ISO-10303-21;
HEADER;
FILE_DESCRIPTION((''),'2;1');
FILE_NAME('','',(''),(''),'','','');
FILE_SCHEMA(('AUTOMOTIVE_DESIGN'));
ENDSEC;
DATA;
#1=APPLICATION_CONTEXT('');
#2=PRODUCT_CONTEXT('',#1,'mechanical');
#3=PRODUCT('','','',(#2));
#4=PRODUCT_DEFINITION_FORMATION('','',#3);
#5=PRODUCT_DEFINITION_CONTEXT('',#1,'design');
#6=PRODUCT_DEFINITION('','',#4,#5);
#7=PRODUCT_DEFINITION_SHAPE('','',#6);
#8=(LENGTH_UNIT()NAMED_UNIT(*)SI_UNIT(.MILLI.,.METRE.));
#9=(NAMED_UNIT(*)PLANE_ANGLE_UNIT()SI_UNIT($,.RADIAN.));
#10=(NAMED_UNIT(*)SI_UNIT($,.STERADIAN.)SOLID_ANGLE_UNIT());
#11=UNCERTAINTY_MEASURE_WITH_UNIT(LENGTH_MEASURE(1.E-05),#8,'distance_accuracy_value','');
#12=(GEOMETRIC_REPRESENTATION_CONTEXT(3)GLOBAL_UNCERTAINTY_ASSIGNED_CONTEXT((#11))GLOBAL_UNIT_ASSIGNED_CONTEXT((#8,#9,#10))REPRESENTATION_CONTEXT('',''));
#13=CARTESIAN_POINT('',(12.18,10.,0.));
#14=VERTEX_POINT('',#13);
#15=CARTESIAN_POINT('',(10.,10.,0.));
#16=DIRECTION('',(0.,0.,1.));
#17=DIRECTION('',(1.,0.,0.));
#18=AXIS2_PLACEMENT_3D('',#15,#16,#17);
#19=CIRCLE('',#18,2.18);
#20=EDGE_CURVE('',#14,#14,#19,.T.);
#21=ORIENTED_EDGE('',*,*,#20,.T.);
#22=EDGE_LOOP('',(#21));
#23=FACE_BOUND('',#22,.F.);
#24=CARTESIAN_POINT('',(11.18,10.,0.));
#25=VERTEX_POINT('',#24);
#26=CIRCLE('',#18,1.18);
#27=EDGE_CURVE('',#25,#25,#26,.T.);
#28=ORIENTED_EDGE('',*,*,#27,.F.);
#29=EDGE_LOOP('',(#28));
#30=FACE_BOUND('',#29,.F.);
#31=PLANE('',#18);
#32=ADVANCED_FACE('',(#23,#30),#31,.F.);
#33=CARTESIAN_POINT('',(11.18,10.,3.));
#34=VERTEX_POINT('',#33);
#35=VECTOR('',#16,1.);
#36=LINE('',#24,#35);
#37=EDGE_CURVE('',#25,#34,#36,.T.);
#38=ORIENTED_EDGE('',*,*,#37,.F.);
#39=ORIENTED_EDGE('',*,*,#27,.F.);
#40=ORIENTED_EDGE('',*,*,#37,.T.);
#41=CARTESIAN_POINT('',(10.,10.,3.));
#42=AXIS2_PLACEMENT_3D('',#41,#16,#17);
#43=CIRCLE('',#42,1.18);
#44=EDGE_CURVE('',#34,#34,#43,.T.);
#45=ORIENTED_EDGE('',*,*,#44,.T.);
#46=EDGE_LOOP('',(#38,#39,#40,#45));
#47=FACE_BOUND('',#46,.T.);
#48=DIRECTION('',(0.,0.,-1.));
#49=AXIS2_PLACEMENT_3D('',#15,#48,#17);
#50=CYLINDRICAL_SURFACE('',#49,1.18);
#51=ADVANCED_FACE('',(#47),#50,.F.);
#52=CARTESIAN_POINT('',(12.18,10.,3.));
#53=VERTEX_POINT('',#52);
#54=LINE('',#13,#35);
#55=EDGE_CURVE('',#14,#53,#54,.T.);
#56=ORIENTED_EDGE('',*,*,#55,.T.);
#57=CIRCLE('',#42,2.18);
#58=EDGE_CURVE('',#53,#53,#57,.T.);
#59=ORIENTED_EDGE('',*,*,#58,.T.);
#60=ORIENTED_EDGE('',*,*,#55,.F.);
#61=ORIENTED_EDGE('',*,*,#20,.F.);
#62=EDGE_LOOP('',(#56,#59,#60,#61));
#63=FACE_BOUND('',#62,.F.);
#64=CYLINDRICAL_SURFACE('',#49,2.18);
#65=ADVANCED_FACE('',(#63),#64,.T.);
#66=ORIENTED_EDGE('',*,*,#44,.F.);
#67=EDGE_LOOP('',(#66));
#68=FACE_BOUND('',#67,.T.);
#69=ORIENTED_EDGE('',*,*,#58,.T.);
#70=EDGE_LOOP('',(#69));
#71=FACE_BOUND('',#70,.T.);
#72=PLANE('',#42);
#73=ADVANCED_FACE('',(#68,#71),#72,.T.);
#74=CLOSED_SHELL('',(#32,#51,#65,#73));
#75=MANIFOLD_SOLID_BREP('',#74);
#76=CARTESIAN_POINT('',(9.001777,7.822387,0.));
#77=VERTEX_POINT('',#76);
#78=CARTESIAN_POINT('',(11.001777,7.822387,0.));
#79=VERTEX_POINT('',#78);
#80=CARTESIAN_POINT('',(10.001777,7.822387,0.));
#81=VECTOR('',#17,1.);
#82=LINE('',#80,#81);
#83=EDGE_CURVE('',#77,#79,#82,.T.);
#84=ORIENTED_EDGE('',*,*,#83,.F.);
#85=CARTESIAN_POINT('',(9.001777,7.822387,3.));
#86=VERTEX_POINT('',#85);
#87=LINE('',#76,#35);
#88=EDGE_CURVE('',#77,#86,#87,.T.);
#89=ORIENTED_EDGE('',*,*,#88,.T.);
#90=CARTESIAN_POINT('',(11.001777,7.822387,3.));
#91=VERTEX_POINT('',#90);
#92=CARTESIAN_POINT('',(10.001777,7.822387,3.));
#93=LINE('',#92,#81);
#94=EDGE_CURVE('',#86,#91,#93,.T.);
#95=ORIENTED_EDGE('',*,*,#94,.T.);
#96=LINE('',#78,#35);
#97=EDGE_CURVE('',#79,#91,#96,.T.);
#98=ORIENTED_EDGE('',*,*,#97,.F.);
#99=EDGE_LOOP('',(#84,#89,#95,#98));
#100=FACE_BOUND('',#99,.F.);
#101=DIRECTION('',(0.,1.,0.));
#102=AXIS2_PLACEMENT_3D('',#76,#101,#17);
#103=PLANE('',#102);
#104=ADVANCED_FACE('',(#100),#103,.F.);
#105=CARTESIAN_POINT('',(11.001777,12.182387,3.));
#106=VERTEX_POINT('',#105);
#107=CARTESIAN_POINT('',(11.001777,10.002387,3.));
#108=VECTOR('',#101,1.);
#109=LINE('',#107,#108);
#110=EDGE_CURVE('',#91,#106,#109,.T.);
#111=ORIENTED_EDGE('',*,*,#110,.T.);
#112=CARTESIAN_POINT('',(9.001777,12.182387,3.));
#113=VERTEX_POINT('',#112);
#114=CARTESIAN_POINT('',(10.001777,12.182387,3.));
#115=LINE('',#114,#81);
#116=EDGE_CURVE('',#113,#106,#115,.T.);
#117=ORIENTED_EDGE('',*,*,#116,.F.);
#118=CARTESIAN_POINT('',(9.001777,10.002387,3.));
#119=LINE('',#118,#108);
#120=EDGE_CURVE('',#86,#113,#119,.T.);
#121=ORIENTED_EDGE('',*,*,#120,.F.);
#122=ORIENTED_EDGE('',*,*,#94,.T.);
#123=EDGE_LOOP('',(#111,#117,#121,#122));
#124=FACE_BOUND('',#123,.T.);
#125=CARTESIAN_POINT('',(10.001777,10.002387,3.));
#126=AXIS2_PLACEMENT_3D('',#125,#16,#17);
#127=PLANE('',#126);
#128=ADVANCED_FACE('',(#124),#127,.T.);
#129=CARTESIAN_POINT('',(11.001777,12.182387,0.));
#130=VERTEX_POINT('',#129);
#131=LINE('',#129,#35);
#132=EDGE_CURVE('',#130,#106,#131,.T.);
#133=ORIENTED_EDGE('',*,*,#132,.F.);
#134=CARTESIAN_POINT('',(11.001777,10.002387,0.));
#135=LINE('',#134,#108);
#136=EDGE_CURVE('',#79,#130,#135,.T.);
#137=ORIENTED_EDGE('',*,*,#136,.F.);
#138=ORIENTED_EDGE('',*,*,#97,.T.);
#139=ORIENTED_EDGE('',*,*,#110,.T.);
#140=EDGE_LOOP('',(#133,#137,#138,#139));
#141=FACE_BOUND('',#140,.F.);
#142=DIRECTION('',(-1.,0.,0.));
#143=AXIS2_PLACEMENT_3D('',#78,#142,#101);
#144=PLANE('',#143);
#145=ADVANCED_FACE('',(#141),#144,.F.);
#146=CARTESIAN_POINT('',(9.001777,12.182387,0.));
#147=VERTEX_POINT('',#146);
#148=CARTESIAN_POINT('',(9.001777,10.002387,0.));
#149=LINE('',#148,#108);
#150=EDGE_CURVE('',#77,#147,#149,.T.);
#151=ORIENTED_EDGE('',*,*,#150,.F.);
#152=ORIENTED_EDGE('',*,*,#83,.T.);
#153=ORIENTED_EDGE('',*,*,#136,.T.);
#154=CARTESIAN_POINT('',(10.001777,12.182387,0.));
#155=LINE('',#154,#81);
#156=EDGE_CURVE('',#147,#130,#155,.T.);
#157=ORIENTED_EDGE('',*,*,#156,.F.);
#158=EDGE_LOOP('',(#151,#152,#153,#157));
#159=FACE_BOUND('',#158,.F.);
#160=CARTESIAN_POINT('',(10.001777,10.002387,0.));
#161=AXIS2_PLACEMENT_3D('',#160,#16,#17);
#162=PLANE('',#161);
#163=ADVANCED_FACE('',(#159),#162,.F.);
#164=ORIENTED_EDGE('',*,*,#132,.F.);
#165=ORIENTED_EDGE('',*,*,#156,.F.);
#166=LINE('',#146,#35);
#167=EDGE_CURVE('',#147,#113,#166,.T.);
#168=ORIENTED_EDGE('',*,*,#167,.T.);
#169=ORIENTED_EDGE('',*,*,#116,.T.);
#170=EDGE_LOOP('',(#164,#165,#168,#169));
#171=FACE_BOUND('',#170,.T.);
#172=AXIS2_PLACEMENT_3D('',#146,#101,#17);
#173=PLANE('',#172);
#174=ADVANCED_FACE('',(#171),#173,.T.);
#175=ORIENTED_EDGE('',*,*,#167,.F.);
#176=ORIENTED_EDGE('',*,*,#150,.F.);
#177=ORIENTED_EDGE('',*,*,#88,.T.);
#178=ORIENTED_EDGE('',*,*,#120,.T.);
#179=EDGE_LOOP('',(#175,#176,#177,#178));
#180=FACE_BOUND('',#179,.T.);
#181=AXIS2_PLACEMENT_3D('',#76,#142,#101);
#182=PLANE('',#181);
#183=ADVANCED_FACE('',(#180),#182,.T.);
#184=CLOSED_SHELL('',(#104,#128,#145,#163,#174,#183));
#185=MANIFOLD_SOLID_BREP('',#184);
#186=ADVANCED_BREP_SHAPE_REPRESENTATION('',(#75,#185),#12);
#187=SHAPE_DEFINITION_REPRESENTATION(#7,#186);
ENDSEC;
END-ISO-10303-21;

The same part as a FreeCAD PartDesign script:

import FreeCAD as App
import Part
import Sketcher
from FreeCAD import Vector
Q = App.Units.Quantity


def add_polygon(sketch, points):
    """Adds a closed chain of lines whose ends are joined by coincident constraints."""
    first, n = sketch.GeometryCount, len(points)
    for a, b in zip(points, points[1:] + points[:1]):
        sketch.addGeometry(Part.LineSegment(App.Vector(*a, 0), App.Vector(*b, 0)), False)
    for i in range(n):
        sketch.addConstraint(Sketcher.Constraint("Coincident", first + i, 2, first + (i + 1) % n, 1))

doc = App.newDocument("Part")
body = doc.addObject("PartDesign::Body", "Body")

# Sketch on XY plane
sketch1 = doc.addObject("Sketcher::SketchObject", "Sketch")
body.addObject(sketch1)
sketch1.AttachmentSupport = (doc.XY_Plane, [""])
sketch1.MapMode = "FlatFace"
sketch1.addGeometry([
    Part.Circle(Vector(10, 10, 0), Vector(0, 0, 1), 2.18),
    Part.Circle(Vector(10, 10, 0), Vector(0, 0, 1), 1.18),
], False)
sketch1.addConstraint([
    Sketcher.Constraint("Coincident", 1, 3, 0, 3),
    Sketcher.Constraint("Diameter", 0, Q("4.36 mm")),
    Sketcher.Constraint("Diameter", 1, Q("2.36 mm")),
    Sketcher.Constraint("DistanceX", -1, 1, 0, 3, Q("10 mm")),
    Sketcher.Constraint("DistanceY", -1, 1, 0, 3, Q("10 mm")),
])
pad1 = doc.addObject("PartDesign::Pad", "Pad")
body.addObject(pad1)
pad1.Profile = sketch1
pad1.Length = 3
body2 = doc.addObject("PartDesign::Body", "Body001")

# Sketch on XY plane
sketch2 = doc.addObject("Sketcher::SketchObject", "Sketch001")
body2.addObject(sketch2)
sketch2.AttachmentSupport = (doc.getObject("XY_Plane001"), [""])
sketch2.MapMode = "FlatFace"
add_polygon(sketch2, [(9.001777, 12.182387), (9.001777, 7.822387), (11.001777, 7.822387), (11.001777, 12.182387)])  # lines 0-3
sketch2.addConstraint([
    Sketcher.Constraint("Vertical", 0),
    Sketcher.Constraint("Horizontal", 1),
    Sketcher.Constraint("Vertical", 2),
    Sketcher.Constraint("Horizontal", 3),
    Sketcher.Constraint("DistanceX", 1, 1, 1, 2, Q("2 mm")),
    Sketcher.Constraint("DistanceY", 0, 2, 0, 1, Q("4.36 mm")),
    Sketcher.Constraint("DistanceX", -1, 1, 0, 2, Q("9.001777 mm")),
    Sketcher.Constraint("DistanceY", -1, 1, 0, 2, Q("7.822387 mm")),
])
pad2 = doc.addObject("PartDesign::Pad", "Pad001")
body2.addObject(pad2)
pad2.Profile = sketch2
pad2.Length = 3

doc.recompute()
